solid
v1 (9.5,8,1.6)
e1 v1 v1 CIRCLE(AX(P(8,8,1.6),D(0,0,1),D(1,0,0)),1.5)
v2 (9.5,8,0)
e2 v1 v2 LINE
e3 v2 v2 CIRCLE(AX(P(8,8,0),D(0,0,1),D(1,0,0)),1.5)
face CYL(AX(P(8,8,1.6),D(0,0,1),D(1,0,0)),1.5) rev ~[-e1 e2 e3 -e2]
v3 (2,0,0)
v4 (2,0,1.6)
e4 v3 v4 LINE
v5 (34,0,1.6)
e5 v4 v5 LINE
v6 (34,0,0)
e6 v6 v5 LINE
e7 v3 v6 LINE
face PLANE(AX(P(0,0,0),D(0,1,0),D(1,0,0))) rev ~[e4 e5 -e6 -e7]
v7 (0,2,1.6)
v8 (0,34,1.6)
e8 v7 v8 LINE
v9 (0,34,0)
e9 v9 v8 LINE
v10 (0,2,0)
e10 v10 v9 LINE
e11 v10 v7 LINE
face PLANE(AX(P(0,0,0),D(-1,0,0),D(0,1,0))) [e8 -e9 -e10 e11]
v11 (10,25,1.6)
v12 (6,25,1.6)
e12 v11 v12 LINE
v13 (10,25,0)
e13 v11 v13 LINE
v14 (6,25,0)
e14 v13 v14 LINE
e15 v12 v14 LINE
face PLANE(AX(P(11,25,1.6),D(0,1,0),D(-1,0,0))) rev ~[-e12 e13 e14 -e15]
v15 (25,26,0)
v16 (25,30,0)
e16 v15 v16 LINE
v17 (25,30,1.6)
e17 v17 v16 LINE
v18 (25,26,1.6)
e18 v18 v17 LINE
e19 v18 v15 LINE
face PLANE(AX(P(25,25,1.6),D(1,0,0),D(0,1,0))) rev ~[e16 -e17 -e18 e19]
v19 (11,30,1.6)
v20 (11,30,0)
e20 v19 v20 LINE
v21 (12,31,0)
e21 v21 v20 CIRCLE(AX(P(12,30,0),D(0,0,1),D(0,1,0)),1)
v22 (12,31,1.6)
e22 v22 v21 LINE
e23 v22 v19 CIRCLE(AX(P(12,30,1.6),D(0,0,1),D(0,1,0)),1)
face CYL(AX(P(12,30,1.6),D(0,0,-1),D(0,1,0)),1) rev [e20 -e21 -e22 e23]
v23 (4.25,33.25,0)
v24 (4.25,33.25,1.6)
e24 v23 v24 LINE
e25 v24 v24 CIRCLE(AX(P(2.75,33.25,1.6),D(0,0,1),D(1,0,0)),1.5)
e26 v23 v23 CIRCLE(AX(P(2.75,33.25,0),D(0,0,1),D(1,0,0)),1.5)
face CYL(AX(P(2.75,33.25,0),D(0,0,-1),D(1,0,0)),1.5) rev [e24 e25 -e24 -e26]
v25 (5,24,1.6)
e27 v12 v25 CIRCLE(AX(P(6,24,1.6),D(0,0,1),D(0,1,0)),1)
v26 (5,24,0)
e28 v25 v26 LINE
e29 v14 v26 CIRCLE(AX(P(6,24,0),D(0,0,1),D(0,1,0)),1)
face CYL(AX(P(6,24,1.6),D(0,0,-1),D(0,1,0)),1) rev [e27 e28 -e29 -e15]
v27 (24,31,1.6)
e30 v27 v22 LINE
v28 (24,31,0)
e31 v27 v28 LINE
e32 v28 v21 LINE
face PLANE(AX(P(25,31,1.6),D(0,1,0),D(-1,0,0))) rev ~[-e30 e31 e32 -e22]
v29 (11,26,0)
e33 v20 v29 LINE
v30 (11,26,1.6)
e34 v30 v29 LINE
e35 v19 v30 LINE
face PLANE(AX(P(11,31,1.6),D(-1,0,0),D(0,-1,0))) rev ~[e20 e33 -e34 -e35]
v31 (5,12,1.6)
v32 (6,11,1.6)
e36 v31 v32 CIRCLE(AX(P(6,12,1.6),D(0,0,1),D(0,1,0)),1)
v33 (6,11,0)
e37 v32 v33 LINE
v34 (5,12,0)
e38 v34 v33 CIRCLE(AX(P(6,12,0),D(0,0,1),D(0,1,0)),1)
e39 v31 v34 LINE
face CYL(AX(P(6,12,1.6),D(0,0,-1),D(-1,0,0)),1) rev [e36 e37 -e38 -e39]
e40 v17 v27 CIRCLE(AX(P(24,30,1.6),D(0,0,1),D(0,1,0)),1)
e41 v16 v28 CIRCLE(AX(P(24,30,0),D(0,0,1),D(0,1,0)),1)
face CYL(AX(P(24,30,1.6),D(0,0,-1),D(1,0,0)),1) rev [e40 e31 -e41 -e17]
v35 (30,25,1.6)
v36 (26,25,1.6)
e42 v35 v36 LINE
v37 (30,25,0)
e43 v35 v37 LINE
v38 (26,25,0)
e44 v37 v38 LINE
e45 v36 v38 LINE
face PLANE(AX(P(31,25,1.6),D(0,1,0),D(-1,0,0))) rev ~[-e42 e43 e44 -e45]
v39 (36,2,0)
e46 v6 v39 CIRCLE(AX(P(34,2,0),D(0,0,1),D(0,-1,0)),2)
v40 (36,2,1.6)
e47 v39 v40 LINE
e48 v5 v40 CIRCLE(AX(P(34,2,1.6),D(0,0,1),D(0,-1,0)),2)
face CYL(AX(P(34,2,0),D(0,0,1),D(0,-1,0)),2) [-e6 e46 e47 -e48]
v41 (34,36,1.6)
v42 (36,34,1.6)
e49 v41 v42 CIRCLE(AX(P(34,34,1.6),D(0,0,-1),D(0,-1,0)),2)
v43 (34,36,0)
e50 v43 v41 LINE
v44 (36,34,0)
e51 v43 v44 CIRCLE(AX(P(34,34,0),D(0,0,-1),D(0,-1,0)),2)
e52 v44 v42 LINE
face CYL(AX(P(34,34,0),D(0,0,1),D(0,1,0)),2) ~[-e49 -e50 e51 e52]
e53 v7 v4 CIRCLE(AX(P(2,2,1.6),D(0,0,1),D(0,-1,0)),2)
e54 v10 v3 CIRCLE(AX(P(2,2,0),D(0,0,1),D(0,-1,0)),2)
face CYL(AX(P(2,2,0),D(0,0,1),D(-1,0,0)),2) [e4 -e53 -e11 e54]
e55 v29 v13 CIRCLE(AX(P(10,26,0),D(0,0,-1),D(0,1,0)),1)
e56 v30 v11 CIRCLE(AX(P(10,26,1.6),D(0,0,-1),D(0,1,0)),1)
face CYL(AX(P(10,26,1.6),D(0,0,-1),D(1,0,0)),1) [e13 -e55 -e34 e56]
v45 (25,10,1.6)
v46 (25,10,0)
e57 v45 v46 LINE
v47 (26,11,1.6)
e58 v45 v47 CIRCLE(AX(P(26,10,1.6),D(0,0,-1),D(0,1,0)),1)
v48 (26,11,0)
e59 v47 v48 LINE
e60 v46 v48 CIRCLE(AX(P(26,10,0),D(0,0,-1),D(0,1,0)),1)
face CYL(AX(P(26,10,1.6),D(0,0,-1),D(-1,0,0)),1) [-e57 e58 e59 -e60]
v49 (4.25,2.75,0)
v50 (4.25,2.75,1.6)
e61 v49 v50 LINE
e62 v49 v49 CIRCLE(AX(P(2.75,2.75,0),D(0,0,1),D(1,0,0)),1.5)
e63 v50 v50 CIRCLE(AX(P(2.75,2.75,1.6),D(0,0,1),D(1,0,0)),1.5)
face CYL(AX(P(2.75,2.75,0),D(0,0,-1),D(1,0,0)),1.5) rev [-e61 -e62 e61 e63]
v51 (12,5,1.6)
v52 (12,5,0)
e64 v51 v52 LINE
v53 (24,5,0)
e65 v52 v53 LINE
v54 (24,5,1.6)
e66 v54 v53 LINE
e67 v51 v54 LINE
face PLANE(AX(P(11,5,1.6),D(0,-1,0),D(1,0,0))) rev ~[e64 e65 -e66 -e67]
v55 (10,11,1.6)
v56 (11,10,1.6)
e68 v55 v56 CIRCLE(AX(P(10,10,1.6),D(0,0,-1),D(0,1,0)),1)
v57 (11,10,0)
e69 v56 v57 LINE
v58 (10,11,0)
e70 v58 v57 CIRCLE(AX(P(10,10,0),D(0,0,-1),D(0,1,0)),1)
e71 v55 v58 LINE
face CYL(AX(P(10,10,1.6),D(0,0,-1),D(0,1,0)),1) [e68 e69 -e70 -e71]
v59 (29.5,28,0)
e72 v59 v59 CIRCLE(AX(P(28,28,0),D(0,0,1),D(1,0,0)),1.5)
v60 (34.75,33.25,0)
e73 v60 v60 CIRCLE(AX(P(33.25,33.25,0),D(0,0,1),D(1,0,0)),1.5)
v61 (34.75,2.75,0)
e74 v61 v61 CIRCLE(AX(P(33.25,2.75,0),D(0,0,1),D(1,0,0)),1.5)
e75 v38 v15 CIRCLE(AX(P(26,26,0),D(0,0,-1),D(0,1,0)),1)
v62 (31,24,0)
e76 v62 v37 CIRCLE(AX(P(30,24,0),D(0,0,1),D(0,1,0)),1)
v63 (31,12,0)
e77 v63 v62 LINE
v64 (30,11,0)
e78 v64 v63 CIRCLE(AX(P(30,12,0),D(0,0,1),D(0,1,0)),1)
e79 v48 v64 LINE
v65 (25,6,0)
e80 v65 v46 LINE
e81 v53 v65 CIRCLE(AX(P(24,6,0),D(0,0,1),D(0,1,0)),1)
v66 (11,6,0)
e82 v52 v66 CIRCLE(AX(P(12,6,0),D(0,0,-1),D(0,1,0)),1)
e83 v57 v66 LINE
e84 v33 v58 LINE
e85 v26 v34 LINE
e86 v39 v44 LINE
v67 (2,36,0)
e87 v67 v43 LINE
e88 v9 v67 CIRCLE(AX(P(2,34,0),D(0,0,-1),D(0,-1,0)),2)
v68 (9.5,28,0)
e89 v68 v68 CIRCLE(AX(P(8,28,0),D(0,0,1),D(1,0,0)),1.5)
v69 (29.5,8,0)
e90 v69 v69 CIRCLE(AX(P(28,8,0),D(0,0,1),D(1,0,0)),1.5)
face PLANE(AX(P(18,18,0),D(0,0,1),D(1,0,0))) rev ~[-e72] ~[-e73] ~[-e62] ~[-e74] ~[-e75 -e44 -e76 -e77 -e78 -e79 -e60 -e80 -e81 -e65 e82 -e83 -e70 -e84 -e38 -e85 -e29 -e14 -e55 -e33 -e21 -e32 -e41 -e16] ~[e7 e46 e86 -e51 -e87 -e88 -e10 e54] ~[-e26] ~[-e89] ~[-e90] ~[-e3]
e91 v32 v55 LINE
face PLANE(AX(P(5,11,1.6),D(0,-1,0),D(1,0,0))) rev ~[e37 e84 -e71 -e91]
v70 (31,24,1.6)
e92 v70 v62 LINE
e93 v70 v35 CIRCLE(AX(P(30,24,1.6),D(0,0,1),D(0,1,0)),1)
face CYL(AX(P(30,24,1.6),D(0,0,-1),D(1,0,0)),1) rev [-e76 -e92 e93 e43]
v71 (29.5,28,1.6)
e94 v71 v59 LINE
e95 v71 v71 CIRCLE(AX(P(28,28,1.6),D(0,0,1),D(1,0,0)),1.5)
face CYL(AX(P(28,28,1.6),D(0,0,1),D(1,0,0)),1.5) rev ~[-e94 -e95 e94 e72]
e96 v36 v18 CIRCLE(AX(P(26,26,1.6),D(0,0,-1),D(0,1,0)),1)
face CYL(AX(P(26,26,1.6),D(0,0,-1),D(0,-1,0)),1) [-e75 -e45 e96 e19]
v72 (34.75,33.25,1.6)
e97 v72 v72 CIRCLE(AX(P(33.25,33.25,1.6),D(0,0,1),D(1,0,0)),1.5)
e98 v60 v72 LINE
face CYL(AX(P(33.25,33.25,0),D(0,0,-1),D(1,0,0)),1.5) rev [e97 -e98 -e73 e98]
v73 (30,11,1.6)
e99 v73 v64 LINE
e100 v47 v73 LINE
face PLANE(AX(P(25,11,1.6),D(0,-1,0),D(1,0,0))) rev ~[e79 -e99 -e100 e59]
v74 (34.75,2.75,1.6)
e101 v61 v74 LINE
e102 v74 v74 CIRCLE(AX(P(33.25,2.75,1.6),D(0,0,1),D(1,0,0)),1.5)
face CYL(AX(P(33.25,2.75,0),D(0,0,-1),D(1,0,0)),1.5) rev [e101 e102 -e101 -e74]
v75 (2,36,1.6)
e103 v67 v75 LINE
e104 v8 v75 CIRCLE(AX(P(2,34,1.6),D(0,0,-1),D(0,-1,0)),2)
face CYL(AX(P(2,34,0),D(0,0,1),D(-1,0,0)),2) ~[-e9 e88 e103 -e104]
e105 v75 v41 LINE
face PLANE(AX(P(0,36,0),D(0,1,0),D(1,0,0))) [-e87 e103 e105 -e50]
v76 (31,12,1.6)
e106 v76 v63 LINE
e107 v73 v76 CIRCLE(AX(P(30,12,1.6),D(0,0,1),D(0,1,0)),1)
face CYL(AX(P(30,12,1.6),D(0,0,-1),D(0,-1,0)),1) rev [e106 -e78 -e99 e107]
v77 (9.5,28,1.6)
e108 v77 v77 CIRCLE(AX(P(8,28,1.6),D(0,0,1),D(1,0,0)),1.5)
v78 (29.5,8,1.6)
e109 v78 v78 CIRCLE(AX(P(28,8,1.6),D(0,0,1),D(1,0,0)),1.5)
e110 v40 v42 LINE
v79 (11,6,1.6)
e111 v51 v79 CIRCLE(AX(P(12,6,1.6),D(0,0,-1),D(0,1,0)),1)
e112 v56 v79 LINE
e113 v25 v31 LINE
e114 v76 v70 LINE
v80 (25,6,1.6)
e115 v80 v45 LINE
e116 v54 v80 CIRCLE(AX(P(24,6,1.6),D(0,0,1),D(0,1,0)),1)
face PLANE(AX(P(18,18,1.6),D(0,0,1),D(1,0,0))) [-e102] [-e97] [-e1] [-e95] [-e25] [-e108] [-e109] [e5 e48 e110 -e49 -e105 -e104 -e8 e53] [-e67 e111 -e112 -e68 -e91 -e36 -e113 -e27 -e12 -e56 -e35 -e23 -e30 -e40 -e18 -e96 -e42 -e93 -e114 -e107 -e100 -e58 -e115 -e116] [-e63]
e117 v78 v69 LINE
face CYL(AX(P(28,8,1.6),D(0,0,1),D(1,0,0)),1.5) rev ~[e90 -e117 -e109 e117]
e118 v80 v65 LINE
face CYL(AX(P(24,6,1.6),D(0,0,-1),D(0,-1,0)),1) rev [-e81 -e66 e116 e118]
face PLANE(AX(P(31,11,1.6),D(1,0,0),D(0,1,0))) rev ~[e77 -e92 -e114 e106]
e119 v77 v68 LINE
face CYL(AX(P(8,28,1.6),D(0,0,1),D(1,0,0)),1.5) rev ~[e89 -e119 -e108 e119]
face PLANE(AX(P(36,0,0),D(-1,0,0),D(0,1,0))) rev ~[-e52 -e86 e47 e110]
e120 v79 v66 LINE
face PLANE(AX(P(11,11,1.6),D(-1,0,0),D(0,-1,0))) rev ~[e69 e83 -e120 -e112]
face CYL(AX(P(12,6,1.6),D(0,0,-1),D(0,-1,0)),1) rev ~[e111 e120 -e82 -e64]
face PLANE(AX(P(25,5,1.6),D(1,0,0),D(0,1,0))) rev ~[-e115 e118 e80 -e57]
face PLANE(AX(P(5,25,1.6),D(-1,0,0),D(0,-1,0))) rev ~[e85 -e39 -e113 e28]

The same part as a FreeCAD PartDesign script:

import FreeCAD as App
import Part
import Sketcher
Q = App.Units.Quantity


def edges_at(feature, points):
    """Names of the edges that pass closest to the given points."""
    edges = feature.Shape.Edges
    near = lambda p: min(range(len(edges)), key=lambda i: edges[i].distToShape(Part.Vertex(*p))[0])
    return sorted({f"Edge{near(p) + 1}" for p in points})


def add_polygon(sketch, points):
    """Adds a closed chain of lines whose ends are joined by coincident constraints."""
    first, n = sketch.GeometryCount, len(points)
    for a, b in zip(points, points[1:] + points[:1]):
        sketch.addGeometry(Part.LineSegment(App.Vector(*a, 0), App.Vector(*b, 0)), False)
    for i in range(n):
        sketch.addConstraint(Sketcher.Constraint("Coincident", first + i, 2, first + (i + 1) % n, 1))

doc = App.newDocument("Part")
params = doc.addObject("Spreadsheet::Sheet", "Params")
for row, (alias, value) in enumerate([
    ("sketch1_diameter", "3 mm"),
    ("sketch1_width", "36 mm"),
    ("pad1_length", "1.6 mm"),
    ("fillet_radius", "2 mm"),
    ("sketch2_diameter", "3 mm"),
    ("pocket1_length", "25 mm"),
    ("sketch3_width", "14 mm"),
    ("sketch3_width2", "6 mm"),
    ("pocket2_length", "25 mm"),
    ("fillet2_radius", "1 mm"),
], start=1):
    params.set(f"A{row}", alias)
    params.set(f"B{row}", "=" + value)
    params.setAlias(f"B{row}", alias)

body = doc.addObject("PartDesign::Body", "Body")

sketch1 = doc.addObject("Sketcher::SketchObject", "Sketch")
body.addObject(sketch1)
sketch1.AttachmentSupport = (doc.XY_Plane, [""])
sketch1.MapMode = "FlatFace"
add_polygon(sketch1, [(0, 36), (0, 0), (36, 0), (36, 36)])
sketch1.addGeometry(Part.Circle(App.Vector(2.8, 2.8, 0), App.Vector(0, 0, 1), 1.5), False)
sketch1.addGeometry(Part.Circle(App.Vector(33.2, 2.8, 0), App.Vector(0, 0, 1), 1.5), False)
sketch1.addGeometry(Part.Circle(App.Vector(2.8, 33.2, 0), App.Vector(0, 0, 1), 1.5), False)
sketch1.addGeometry(Part.Circle(App.Vector(33.2, 33.2, 0), App.Vector(0, 0, 1), 1.5), False)
sketch1.addConstraint(Sketcher.Constraint("Vertical", 0))
sketch1.addConstraint(Sketcher.Constraint("Horizontal", 1))
sketch1.addConstraint(Sketcher.Constraint("Vertical", 2))
sketch1.addConstraint(Sketcher.Constraint("Horizontal", 3))
sketch1.addConstraint(Sketcher.Constraint("Coincident", 0, 2, -1, 1))
sketch1.addConstraint(Sketcher.Constraint("Equal", 4, 5))
sketch1.addConstraint(Sketcher.Constraint("Equal", 5, 6))
sketch1.addConstraint(Sketcher.Constraint("Equal", 6, 7))
sketch1.addConstraint(Sketcher.Constraint("Horizontal", 4, 3, 5, 3))
sketch1.addConstraint(Sketcher.Constraint("Horizontal", 6, 3, 7, 3))
sketch1.addConstraint(Sketcher.Constraint("Vertical", 4, 3, 6, 3))
sketch1.addConstraint(Sketcher.Constraint("Vertical", 5, 3, 7, 3))
sketch1.addConstraint(Sketcher.Constraint("Equal", 3, 0))
sketch1.addConstraint(Sketcher.Constraint("Diameter", 4, Q("3 mm")))
sketch1.addConstraint(Sketcher.Constraint("DistanceX", 1, 1, 1, 2, Q("36 mm")))
sketch1.addConstraint(Sketcher.Constraint("DistanceX", 4, 3, 5, 3, Q("30.5 mm")))
sketch1.addConstraint(Sketcher.Constraint("DistanceY", 4, 3, 6, 3, Q("30.5 mm")))
sketch1.addConstraint(Sketcher.Constraint("DistanceX", -1, 1, 4, 3, Q("2.75 mm")))
sketch1.addConstraint(Sketcher.Constraint("DistanceY", -1, 1, 4, 3, Q("2.75 mm")))
sketch1.setExpression("Constraints[17]", "Params.sketch1_diameter")
sketch1.setExpression("Constraints[18]", "Params.sketch1_width")
pad1 = doc.addObject("PartDesign::Pad", "Pad")
body.addObject(pad1)
pad1.Profile = sketch1
pad1.setExpression("Length", "Params.pad1_length")
doc.recompute()

fillet = doc.addObject("PartDesign::Fillet", "Fillet")
body.addObject(fillet)
fillet.Base = (pad1, edges_at(pad1, [
    (0, 36, 0.8),
    (36, 36, 0.8),
    (36, 0, 0.8),
    (0, 0, 0.8),
]))
fillet.setExpression("Radius", "Params.fillet_radius")

sketch2 = doc.addObject("Sketcher::SketchObject", "Sketch001")
body.addObject(sketch2)
sketch2.AttachmentSupport = (doc.XY_Plane, [""])
sketch2.MapMode = "FlatFace"
sketch2.AttachmentOffset = App.Placement(App.Vector(0, 0, 1.6), App.Rotation())
sketch2.addGeometry(Part.Circle(App.Vector(8, 28, 0), App.Vector(0, 0, 1), 1.5), False)
sketch2.addGeometry(Part.Circle(App.Vector(8, 8, 0), App.Vector(0, 0, 1), 1.5), False)
sketch2.addGeometry(Part.Circle(App.Vector(28, 28, 0), App.Vector(0, 0, 1), 1.5), False)
sketch2.addGeometry(Part.Circle(App.Vector(28, 8, 0), App.Vector(0, 0, 1), 1.5), False)
sketch2.addConstraint(Sketcher.Constraint("Equal", 0, 1))
sketch2.addConstraint(Sketcher.Constraint("Equal", 1, 2))
sketch2.addConstraint(Sketcher.Constraint("Equal", 2, 3))
sketch2.addConstraint(Sketcher.Constraint("Horizontal", 0, 3, 2, 3))
sketch2.addConstraint(Sketcher.Constraint("Horizontal", 1, 3, 3, 3))
sketch2.addConstraint(Sketcher.Constraint("Vertical", 0, 3, 1, 3))
sketch2.addConstraint(Sketcher.Constraint("Vertical", 2, 3, 3, 3))
sketch2.addConstraint(Sketcher.Constraint("Diameter", 0, Q("3 mm")))
sketch2.addConstraint(Sketcher.Constraint("DistanceX", -1, 1, 0, 3, Q("8 mm")))
sketch2.addConstraint(Sketcher.Constraint("DistanceY", -1, 1, 0, 3, Q("28 mm")))
sketch2.addConstraint(Sketcher.Constraint("DistanceY", -1, 1, 1, 3, Q("8 mm")))
sketch2.addConstraint(Sketcher.Constraint("DistanceX", -1, 1, 2, 3, Q("28 mm")))
sketch2.setExpression("Constraints[7]", "Params.sketch2_diameter")
pocket1 = doc.addObject("PartDesign::Pocket", "Pocket")
body.addObject(pocket1)
pocket1.Profile = sketch2
pocket1.setExpression("Length", "Params.pocket1_length")

sketch3 = doc.addObject("Sketcher::SketchObject", "Sketch002")
body.addObject(sketch3)
sketch3.AttachmentSupport = (doc.XY_Plane, [""])
sketch3.MapMode = "FlatFace"
sketch3.AttachmentOffset = App.Placement(App.Vector(0, 0, 1.6), App.Rotation())
add_polygon(sketch3, [(11, 5), (25, 5), (25, 11), (31, 11), (31, 25), (25, 25), (25, 31), (11, 31), (11, 25), (5, 25), (5, 11), (11, 11)])
sketch3.addConstraint(Sketcher.Constraint("Horizontal", 0))
sketch3.addConstraint(Sketcher.Constraint("Vertical", 1))
sketch3.addConstraint(Sketcher.Constraint("Horizontal", 2))
sketch3.addConstraint(Sketcher.Constraint("Vertical", 3))
sketch3.addConstraint(Sketcher.Constraint("Horizontal", 4))
sketch3.addConstraint(Sketcher.Constraint("Vertical", 5))
sketch3.addConstraint(Sketcher.Constraint("Horizontal", 6))
sketch3.addConstraint(Sketcher.Constraint("Vertical", 7))
sketch3.addConstraint(Sketcher.Constraint("Horizontal", 8))
sketch3.addConstraint(Sketcher.Constraint("Vertical", 9))
sketch3.addConstraint(Sketcher.Constraint("Horizontal", 10))
sketch3.addConstraint(Sketcher.Constraint("Vertical", 11))
sketch3.addConstraint(Sketcher.Constraint("Horizontal", 4, 2, 7, 2))
sketch3.addConstraint(Sketcher.Constraint("Horizontal", 2, 2, 9, 2))
sketch3.addConstraint(Sketcher.Constraint("Vertical", 1, 2, 4, 2))
sketch3.addConstraint(Sketcher.Constraint("Vertical", 7, 2, 10, 2))
sketch3.addConstraint(Sketcher.Constraint("Equal", 4, 8))
sketch3.addConstraint(Sketcher.Constraint("Equal", 10, 1))
sketch3.addConstraint(Sketcher.Constraint("Equal", 6, 3))
sketch3.addConstraint(Sketcher.Constraint("Equal", 1, 5))
sketch3.addConstraint(Sketcher.Constraint("DistanceX", 0, 1, 0, 2, Q("14 mm")))
sketch3.addConstraint(Sketcher.Constraint("DistanceX", 2, 1, 2, 2, Q("6 mm")))
sketch3.addConstraint(Sketcher.Constraint("DistanceX", -1, 1, 0, 2, Q("25 mm")))
sketch3.addConstraint(Sketcher.Constraint("DistanceY", -1, 1, 0, 2, Q("5 mm")))
sketch3.setExpression("Constraints[32]", "Params.sketch3_width")
sketch3.setExpression("Constraints[33]", "Params.sketch3_width2")
pocket2 = doc.addObject("PartDesign::Pocket", "Pocket001")
body.addObject(pocket2)
pocket2.Profile = sketch3
pocket2.setExpression("Length", "Params.pocket2_length")
doc.recompute()

fillet2 = doc.addObject("PartDesign::Fillet", "Fillet001")
body.addObject(fillet2)
fillet2.Base = (pocket2, edges_at(pocket2, [
    (11, 25, 0.8),
    (25, 25, 0.8),
    (25, 11, 0.8),
    (11, 11, 0.8),
    (11, 5, 0.8),
    (5, 11, 0.8),
    (25, 5, 0.8),
    (31, 11, 0.8),
    (5, 25, 0.8),
    (11, 31, 0.8),
    (31, 25, 0.8),
    (25, 31, 0.8),
]))
fillet2.setExpression("Radius", "Params.fillet2_radius")

doc.recompute()
